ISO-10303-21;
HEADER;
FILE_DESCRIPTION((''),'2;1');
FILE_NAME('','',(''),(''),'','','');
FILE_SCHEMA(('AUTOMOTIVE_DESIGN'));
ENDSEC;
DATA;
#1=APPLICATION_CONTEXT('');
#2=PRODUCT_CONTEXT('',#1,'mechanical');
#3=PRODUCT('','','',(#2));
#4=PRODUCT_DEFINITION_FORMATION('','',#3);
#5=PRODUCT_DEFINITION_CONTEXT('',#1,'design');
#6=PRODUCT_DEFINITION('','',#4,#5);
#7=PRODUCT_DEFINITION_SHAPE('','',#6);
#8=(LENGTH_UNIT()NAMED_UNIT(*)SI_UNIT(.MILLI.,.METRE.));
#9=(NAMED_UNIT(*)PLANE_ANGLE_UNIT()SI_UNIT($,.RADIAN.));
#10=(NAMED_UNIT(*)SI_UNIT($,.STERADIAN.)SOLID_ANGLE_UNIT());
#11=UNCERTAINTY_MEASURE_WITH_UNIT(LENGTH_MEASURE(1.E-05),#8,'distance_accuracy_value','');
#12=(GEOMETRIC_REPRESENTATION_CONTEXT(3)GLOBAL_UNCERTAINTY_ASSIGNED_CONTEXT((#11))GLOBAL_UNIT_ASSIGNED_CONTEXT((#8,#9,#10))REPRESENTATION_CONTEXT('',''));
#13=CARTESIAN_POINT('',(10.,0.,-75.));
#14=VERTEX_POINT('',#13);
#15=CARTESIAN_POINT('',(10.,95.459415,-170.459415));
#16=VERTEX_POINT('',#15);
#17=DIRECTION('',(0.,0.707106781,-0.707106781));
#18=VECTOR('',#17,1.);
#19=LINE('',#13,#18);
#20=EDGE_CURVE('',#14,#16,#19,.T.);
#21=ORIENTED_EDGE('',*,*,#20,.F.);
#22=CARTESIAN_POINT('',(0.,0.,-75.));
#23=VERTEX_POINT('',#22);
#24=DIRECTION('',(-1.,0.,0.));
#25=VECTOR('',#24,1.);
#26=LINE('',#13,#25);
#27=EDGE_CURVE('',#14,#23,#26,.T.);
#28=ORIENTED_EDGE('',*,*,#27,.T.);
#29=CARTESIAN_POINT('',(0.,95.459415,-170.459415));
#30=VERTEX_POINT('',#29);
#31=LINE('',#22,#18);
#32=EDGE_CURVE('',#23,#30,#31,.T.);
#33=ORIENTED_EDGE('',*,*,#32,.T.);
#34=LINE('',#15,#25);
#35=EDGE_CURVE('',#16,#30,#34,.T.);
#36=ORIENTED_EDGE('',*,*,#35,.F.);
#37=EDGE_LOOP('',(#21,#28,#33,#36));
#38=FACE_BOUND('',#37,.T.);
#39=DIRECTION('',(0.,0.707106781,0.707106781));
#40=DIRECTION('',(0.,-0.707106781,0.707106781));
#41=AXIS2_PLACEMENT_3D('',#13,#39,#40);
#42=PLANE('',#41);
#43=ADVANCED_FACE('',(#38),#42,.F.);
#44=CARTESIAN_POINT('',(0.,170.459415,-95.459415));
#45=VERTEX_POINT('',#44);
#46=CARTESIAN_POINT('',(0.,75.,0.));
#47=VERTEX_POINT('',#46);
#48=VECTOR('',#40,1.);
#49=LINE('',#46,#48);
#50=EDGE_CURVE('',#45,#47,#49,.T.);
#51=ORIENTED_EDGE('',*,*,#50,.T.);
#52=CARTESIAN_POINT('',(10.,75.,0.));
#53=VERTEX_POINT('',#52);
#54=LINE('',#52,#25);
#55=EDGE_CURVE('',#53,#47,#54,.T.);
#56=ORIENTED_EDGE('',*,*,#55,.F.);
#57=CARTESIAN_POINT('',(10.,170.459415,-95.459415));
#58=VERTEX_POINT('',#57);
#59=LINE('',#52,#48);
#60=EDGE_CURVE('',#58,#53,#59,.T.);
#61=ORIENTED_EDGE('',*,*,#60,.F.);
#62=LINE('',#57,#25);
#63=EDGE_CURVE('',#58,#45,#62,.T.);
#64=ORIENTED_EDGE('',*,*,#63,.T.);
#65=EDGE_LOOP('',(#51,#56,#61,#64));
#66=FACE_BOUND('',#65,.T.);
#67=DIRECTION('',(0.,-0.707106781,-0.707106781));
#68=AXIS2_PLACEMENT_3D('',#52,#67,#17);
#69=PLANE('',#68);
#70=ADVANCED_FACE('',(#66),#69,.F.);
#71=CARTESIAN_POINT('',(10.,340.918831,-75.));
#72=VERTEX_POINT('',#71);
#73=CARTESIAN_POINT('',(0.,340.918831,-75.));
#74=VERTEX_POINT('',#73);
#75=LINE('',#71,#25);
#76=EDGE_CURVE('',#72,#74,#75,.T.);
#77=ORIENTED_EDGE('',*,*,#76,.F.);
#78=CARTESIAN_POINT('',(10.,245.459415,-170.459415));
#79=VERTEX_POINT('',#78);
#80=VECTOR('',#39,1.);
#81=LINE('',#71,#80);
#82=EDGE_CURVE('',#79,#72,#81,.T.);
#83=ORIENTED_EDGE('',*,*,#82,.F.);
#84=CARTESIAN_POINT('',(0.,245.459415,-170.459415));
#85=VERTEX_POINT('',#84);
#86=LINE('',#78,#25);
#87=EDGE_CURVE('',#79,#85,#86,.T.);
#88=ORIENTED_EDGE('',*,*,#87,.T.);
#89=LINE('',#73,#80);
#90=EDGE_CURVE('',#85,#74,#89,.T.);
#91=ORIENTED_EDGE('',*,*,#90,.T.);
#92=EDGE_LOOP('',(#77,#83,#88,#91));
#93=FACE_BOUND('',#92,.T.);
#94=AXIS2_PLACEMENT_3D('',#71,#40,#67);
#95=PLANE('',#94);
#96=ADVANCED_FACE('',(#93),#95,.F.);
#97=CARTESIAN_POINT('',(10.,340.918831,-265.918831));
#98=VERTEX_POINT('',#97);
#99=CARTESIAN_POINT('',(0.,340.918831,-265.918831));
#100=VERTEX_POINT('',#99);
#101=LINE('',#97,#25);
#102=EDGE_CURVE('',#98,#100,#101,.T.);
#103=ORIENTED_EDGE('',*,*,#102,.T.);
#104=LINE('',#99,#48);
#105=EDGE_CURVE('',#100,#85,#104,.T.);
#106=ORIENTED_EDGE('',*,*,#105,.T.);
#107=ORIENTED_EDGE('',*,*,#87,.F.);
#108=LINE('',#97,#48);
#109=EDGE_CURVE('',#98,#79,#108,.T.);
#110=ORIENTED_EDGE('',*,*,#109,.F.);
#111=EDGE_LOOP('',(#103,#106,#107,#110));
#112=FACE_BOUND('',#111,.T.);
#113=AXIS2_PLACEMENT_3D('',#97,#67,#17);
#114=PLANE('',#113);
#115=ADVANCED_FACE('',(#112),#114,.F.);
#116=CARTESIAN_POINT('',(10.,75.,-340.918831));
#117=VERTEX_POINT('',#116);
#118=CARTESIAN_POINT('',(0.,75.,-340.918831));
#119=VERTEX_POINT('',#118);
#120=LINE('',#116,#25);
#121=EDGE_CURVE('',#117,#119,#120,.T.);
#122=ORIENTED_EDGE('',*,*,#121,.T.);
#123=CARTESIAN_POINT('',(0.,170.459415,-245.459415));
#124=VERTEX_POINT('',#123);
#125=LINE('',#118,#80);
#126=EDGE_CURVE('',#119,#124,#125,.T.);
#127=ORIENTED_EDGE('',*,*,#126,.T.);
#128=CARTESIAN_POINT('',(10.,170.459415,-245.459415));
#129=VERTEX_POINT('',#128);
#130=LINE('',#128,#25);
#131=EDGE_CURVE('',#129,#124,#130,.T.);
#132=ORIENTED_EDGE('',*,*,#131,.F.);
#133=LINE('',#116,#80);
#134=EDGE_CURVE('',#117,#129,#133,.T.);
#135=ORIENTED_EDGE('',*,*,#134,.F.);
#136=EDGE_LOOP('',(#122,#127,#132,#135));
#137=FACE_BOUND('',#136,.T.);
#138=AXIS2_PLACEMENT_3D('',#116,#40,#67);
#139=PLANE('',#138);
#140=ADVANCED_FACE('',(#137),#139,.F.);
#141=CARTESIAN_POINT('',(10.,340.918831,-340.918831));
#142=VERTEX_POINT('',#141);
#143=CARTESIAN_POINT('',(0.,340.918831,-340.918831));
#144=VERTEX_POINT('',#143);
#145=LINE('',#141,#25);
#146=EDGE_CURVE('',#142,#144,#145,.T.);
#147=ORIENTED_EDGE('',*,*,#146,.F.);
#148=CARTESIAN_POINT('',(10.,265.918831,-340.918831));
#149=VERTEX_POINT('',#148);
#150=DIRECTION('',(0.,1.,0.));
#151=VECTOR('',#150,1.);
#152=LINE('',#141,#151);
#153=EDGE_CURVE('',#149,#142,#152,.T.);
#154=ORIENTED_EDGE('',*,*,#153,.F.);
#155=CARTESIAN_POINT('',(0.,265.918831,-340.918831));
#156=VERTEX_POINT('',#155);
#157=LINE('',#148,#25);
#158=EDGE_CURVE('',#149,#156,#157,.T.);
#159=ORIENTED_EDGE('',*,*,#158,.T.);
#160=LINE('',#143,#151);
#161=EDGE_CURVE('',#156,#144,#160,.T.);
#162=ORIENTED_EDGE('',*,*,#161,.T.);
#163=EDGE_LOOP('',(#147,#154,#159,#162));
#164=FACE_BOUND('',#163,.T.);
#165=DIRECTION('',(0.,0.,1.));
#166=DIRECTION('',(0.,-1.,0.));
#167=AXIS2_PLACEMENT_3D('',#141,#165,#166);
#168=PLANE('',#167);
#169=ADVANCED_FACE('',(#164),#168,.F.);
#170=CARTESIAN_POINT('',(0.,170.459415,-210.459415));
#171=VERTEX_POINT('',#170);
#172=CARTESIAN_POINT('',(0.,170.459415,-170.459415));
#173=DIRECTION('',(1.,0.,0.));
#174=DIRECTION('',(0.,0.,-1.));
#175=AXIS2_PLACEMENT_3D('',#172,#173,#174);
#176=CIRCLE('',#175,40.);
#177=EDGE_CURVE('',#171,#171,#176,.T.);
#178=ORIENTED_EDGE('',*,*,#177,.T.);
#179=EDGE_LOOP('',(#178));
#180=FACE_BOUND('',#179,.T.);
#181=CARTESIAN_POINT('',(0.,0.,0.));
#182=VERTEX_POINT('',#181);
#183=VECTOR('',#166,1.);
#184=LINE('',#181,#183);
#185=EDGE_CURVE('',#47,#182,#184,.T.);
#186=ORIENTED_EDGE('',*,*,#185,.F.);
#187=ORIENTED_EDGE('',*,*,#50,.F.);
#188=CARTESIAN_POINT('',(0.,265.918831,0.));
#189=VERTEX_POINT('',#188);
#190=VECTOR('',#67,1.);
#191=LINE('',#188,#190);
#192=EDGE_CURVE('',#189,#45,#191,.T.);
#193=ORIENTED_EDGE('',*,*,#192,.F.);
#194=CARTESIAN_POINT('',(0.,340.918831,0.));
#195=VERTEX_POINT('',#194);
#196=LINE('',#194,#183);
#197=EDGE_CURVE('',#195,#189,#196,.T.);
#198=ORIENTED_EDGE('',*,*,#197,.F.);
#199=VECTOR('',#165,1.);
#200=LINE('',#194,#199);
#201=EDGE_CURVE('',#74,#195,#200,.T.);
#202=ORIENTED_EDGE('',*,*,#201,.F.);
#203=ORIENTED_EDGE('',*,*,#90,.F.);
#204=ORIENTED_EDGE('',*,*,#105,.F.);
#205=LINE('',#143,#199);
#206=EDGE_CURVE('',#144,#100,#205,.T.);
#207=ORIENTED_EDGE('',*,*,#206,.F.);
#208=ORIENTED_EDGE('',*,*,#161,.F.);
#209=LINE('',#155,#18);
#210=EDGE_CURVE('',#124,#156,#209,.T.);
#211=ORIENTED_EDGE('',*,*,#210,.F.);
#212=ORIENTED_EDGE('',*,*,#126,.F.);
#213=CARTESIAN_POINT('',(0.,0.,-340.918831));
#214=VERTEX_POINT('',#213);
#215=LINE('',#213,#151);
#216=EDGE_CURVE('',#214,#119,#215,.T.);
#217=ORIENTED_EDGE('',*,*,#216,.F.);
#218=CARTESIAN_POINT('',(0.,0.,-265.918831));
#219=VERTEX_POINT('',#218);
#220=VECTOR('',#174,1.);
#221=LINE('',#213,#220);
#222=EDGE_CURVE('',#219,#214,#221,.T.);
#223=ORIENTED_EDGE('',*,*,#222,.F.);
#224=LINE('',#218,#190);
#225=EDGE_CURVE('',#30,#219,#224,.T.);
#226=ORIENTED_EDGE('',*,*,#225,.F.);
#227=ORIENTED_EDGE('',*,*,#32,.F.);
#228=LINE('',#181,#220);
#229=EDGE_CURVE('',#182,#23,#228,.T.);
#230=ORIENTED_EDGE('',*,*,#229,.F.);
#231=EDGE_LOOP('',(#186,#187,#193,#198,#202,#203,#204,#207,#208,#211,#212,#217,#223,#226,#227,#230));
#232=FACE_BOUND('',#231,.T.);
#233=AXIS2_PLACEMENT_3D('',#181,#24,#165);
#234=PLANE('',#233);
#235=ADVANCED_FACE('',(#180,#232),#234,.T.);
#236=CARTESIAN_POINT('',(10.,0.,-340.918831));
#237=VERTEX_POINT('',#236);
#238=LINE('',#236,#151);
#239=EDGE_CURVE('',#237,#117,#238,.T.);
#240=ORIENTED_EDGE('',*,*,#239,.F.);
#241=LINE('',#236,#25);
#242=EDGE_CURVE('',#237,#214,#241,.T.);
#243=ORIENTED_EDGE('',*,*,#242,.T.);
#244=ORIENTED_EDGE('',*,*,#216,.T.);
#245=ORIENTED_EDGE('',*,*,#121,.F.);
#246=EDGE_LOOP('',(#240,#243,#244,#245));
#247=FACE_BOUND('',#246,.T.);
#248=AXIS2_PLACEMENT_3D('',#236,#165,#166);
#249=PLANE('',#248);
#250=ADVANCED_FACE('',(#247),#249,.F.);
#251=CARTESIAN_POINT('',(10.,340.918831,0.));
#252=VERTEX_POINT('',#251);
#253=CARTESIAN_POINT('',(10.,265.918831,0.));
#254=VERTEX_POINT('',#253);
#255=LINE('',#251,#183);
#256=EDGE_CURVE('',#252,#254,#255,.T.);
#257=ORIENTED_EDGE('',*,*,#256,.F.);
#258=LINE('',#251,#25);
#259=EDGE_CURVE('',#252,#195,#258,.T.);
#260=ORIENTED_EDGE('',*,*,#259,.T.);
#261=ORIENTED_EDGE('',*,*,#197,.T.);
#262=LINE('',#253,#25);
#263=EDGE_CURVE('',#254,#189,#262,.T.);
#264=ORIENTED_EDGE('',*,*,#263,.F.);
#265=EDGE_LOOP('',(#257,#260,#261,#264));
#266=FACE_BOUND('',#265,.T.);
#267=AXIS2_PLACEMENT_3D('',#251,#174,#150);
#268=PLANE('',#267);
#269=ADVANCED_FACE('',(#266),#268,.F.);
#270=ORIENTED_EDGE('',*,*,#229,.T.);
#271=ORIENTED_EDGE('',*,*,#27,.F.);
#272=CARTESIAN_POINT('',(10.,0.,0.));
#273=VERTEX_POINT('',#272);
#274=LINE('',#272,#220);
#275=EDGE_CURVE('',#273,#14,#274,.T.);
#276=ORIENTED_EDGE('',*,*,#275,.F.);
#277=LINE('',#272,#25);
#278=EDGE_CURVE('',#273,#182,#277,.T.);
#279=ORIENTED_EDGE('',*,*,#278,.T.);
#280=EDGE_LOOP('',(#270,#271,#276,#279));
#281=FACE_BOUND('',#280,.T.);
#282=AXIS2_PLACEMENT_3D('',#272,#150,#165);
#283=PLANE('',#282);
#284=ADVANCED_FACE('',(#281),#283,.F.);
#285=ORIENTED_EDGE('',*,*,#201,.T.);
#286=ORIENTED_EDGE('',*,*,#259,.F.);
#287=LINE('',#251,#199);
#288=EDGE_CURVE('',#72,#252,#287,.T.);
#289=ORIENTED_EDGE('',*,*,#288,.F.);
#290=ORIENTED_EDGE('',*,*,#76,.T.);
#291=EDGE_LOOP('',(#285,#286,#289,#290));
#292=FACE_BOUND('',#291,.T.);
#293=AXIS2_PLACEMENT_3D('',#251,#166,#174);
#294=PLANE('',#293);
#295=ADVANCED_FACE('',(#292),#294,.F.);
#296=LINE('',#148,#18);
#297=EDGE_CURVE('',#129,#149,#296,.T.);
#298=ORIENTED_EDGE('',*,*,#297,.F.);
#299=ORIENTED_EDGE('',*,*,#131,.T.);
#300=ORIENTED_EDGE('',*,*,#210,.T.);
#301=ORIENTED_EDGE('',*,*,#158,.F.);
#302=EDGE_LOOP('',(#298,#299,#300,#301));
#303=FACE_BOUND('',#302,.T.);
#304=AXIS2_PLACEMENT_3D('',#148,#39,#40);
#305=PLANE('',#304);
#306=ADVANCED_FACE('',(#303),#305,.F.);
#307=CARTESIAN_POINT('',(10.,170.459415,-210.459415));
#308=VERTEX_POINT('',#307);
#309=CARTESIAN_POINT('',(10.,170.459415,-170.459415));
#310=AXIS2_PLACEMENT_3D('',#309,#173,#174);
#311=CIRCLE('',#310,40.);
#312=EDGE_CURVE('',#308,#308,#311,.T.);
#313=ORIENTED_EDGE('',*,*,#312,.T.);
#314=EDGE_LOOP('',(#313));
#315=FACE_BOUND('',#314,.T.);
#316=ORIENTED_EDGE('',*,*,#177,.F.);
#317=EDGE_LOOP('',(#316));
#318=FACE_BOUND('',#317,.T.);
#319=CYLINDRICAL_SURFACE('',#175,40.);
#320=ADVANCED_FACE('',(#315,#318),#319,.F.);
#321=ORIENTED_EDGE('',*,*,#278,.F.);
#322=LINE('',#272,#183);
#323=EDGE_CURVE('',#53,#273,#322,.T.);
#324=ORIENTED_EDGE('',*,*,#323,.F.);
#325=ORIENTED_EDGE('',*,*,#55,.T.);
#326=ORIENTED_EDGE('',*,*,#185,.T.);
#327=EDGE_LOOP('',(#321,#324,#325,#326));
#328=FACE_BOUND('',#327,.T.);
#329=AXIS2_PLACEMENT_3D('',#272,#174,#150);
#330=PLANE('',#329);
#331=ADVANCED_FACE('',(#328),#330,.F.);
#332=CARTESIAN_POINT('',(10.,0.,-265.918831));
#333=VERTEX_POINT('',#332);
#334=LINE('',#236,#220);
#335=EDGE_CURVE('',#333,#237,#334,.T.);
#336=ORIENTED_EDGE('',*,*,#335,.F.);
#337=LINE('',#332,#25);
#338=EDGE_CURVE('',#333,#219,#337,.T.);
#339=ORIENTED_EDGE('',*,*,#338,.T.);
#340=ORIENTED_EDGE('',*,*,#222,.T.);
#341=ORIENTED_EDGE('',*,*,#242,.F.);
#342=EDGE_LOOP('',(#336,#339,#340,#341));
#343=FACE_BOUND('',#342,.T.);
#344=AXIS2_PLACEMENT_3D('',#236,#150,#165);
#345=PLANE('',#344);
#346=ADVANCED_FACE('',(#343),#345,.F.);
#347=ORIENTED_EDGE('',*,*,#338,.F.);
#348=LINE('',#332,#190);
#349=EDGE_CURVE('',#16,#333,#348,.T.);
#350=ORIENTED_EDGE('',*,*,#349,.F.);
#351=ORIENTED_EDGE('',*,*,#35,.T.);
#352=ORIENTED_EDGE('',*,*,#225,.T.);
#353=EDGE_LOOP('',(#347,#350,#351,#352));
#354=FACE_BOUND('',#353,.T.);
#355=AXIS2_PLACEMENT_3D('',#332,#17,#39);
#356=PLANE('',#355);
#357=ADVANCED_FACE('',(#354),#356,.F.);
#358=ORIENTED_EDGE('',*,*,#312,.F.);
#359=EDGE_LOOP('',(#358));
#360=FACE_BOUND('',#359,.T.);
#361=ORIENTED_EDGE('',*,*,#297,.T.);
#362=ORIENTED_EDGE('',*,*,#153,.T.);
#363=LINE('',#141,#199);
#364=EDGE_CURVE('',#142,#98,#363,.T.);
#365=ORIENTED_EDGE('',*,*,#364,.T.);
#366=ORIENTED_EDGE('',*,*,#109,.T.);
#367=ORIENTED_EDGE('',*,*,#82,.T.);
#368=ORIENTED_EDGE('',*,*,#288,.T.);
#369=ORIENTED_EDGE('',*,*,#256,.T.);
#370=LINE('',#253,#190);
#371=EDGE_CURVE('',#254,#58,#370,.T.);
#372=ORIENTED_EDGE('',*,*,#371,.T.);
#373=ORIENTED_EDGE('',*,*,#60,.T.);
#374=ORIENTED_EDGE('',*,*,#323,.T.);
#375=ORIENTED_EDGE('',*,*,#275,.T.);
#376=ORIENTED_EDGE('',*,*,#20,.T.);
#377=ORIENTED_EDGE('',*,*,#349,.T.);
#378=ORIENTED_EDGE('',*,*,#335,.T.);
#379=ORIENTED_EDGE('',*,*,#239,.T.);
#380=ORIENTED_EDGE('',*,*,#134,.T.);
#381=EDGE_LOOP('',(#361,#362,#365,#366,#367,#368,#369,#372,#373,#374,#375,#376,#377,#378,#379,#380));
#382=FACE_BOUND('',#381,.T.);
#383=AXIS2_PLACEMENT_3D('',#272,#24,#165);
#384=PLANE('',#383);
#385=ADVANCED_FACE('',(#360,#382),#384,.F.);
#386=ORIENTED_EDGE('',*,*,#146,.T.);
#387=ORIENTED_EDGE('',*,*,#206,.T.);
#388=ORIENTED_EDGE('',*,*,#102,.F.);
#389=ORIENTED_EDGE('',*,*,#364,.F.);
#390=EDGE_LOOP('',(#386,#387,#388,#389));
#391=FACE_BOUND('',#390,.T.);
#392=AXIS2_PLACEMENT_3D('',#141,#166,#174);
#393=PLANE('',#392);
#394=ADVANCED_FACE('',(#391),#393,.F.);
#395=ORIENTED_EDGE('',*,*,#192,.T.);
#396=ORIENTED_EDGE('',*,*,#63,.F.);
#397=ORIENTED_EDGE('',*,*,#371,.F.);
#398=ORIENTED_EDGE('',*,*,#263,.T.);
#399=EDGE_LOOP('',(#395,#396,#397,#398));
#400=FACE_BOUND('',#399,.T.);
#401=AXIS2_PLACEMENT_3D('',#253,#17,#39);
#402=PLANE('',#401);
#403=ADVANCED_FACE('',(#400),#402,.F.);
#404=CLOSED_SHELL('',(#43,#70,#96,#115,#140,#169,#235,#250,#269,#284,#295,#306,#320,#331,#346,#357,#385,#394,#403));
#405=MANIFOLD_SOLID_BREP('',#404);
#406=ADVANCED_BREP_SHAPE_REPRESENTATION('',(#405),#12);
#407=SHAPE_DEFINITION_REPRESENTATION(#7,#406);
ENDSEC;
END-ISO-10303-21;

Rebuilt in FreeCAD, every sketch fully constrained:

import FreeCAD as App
import Part
import Sketcher

V = App.Vector
Q = App.Units.Quantity

doc = App.newDocument("Part")
body = doc.addObject("PartDesign::Body", "Body")

# Sketch on YZ plane
sketch1 = body.newObject("Sketcher::SketchObject", "Sketch")
sketch1.AttachmentSupport = (doc.getObject("YZ_Plane"), [""])
sketch1.MapMode = "FlatFace"
sketch1.addGeometry([
    Part.LineSegment(V(0, 0, 0), V(0, -75, 0)),  # 0
    Part.LineSegment(V(0, -75, 0), V(95.459415, -170.459415, 0)),  # 1
    Part.LineSegment(V(95.459415, -170.459415, 0), V(0, -265.918831, 0)),  # 2
    Part.LineSegment(V(0, -265.918831, 0), V(0, -340.918831, 0)),  # 3
    Part.LineSegment(V(0, -340.918831, 0), V(75, -340.918831, 0)),  # 4
    Part.LineSegment(V(75, -340.918831, 0), V(170.459415, -245.459415, 0)),  # 5
    Part.LineSegment(V(170.459415, -245.459415, 0), V(265.918831, -340.918831, 0)),  # 6
    Part.LineSegment(V(265.918831, -340.918831, 0), V(340.918831, -340.918831, 0)),  # 7
    Part.LineSegment(V(340.918831, -340.918831, 0), V(340.918831, -265.918831, 0)),  # 8
    Part.LineSegment(V(340.918831, -265.918831, 0), V(245.459415, -170.459415, 0)),  # 9
    Part.LineSegment(V(245.459415, -170.459415, 0), V(340.918831, -75, 0)),  # 10
    Part.LineSegment(V(340.918831, -75, 0), V(340.918831, 0, 0)),  # 11
    Part.LineSegment(V(340.918831, 0, 0), V(265.918831, 0, 0)),  # 12
    Part.LineSegment(V(265.918831, 0, 0), V(170.459415, -95.459415, 0)),  # 13
    Part.LineSegment(V(170.459415, -95.459415, 0), V(75, 0, 0)),  # 14
    Part.LineSegment(V(75, 0, 0), V(0, 0, 0)),  # 15
], False)
sketch1.addConstraint([
    Sketcher.Constraint("Coincident", 0, 2, 1, 1),
    Sketcher.Constraint("Coincident", 1, 2, 2, 1),
    Sketcher.Constraint("Coincident", 2, 2, 3, 1),
    Sketcher.Constraint("Coincident", 3, 2, 4, 1),
    Sketcher.Constraint("Coincident", 4, 2, 5, 1),
    Sketcher.Constraint("Coincident", 5, 2, 6, 1),
    Sketcher.Constraint("Coincident", 6, 2, 7, 1),
    Sketcher.Constraint("Coincident", 7, 2, 8, 1),
    Sketcher.Constraint("Coincident", 8, 2, 9, 1),
    Sketcher.Constraint("Coincident", 9, 2, 10, 1),
    Sketcher.Constraint("Coincident", 10, 2, 11, 1),
    Sketcher.Constraint("Coincident", 11, 2, 12, 1),
    Sketcher.Constraint("Coincident", 12, 2, 13, 1),
    Sketcher.Constraint("Coincident", 13, 2, 14, 1),
    Sketcher.Constraint("Coincident", 14, 2, 15, 1),
    Sketcher.Constraint("Coincident", 15, 2, 0, 1),
    Sketcher.Constraint("Vertical", 0),
    Sketcher.Constraint("Vertical", 3),
    Sketcher.Constraint("Horizontal", 4),
    Sketcher.Constraint("Horizontal", 7),
    Sketcher.Constraint("Vertical", 8),
    Sketcher.Constraint("Vertical", 11),
    Sketcher.Constraint("Horizontal", 12),
    Sketcher.Constraint("Horizontal", 15),
    Sketcher.Constraint("Coincident", 15, 2, -1, 1),
    Sketcher.Constraint("PointOnObject", 2, 2, -2),
    Sketcher.Constraint("PointOnObject", 11, 2, -1),
    Sketcher.Constraint("Perpendicular", 1, 2),
    Sketcher.Constraint("Parallel", 2, 5),
    Sketcher.Constraint("Perpendicular", 5, 6),
    Sketcher.Constraint("Parallel", 6, 9),
    Sketcher.Constraint("Perpendicular", 9, 10),
    Sketcher.Constraint("Parallel", 10, 13),
    Sketcher.Constraint("Perpendicular", 13, 14),
    Sketcher.Constraint("Horizontal", 4, 2, 6, 2),
    Sketcher.Constraint("Horizontal", 2, 2, 8, 2),
    Sketcher.Constraint("Horizontal", 1, 2, 9, 2),
    Sketcher.Constraint("Horizontal", 0, 2, 10, 2),
    Sketcher.Constraint("Vertical", 8, 2, 10, 2),
    Sketcher.Constraint("Vertical", 6, 2, 12, 2),
    Sketcher.Constraint("Vertical", 5, 2, 13, 2),
    Sketcher.Constraint("Equal", 4, 7),
    Sketcher.Constraint("Equal", 15, 0),
    Sketcher.Constraint("Equal", 0, 3),
    Sketcher.Constraint("Equal", 2, 5),
    Sketcher.Constraint("DistanceX", 4, 1, 4, 2, Q("75 mm")),
    Sketcher.Constraint("Distance", 1, Q("135 mm")),
])
pad1 = body.newObject("PartDesign::Pad", "Pad")
pad1.Profile = sketch1
pad1.Length = 10

# Sketch on YZ plane
sketch2 = body.newObject("Sketcher::SketchObject", "Sketch001")
sketch2.AttachmentSupport = (doc.getObject("YZ_Plane"), [""])
sketch2.MapMode = "FlatFace"
sketch2.AttachmentOffset = App.Placement(V(0, 0, 10), App.Rotation())
sketch2.addGeometry(Part.Circle(V(170.459415, -170.459415, 0), V(0, 0, 1), 40), False)
sketch2.addConstraint([
    Sketcher.Constraint("Diameter", 0, Q("80 mm")),
    Sketcher.Constraint("DistanceX", -1, 1, 0, 3, Q("170.459415 mm")),
    Sketcher.Constraint("DistanceY", 0, 3, -1, 1, Q("170.459415 mm")),
])
pocket1 = body.newObject("PartDesign::Pocket", "Pocket")
pocket1.Profile = sketch2
pocket1.Length = 10

doc.recompute()
